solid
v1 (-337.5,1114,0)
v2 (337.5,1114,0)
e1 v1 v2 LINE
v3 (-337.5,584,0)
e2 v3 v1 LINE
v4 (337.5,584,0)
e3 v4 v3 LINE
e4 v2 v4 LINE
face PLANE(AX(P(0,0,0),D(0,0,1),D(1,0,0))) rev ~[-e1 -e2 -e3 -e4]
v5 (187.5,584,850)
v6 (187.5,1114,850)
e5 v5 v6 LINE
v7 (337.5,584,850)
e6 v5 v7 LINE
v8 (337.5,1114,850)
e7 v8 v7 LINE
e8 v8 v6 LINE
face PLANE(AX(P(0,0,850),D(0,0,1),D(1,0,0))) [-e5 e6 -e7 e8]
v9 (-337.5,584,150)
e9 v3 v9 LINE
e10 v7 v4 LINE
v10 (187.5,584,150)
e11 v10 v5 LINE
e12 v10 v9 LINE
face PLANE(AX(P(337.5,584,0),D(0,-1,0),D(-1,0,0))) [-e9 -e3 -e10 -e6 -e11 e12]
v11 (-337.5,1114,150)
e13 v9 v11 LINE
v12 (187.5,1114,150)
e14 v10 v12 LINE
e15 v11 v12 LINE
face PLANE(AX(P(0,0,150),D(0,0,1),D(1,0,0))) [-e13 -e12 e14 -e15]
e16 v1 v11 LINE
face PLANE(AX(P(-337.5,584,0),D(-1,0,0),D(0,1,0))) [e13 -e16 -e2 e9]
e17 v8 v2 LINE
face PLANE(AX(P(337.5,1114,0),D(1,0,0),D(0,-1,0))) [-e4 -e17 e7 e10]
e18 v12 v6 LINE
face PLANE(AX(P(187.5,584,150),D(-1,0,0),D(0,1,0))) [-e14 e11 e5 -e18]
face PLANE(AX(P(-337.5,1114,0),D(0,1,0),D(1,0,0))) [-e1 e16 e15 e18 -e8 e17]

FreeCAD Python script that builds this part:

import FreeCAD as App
import Part
import Sketcher

doc = App.newDocument("Part")
body = doc.addObject("PartDesign::Body", "Body")

# Sketch on XY plane
sketch1 = body.newObject("Sketcher::SketchObject", "Sketch")
sketch1.AttachmentSupport = (doc.getObject("XY_Plane"), [""])
sketch1.MapMode = "FlatFace"
sketch1.addGeometry([
    Part.LineSegment(App.Vector(338, 1114, 0), App.Vector(-338, 1114, 0)),
    Part.LineSegment(App.Vector(-338, 1114, 0), App.Vector(-338, 584, 0)),
    Part.LineSegment(App.Vector(-338, 584, 0), App.Vector(338, 584, 0)),
    Part.LineSegment(App.Vector(338, 584, 0), App.Vector(338, 1114, 0)),
], False)
sketch1.addConstraint([
    Sketcher.Constraint("Coincident", 0, 2, 1, 1),
    Sketcher.Constraint("Coincident", 1, 2, 2, 1),
    Sketcher.Constraint("Coincident", 2, 2, 3, 1),
    Sketcher.Constraint("Coincident", 3, 2, 0, 1),
    Sketcher.Constraint("Horizontal", 0),
    Sketcher.Constraint("Vertical", 1),
    Sketcher.Constraint("Horizontal", 2),
    Sketcher.Constraint("Vertical", 3),
    Sketcher.Constraint("DistanceX", 0, 2, 0, 1, 675.0),
    Sketcher.Constraint("DistanceY", 1, 2, 1, 1, 530.0),
    Sketcher.Constraint("DistanceY", -1, 1, 0, 2, 1114.0),
    Sketcher.Constraint("DistanceX", 0, 2, -1, 1, 337.5),
])
pad1 = body.newObject("PartDesign::Pad", "Pad")
pad1.Profile = sketch1
pad1.Length = 150

# Sketch on XY plane
sketch2 = body.newObject("Sketcher::SketchObject", "Sketch001")
sketch2.AttachmentSupport = (doc.getObject("XY_Plane"), [""])
sketch2.MapMode = "FlatFace"
sketch2.AttachmentOffset = App.Placement(App.Vector(0, 0, 150), App.Rotation())
sketch2.addGeometry([
    Part.LineSegment(App.Vector(188, 1114, 0), App.Vector(188, 584, 0)),
    Part.LineSegment(App.Vector(188, 584, 0), App.Vector(338, 584, 0)),
    Part.LineSegment(App.Vector(338, 584, 0), App.Vector(338, 1114, 0)),
    Part.LineSegment(App.Vector(338, 1114, 0), App.Vector(188, 1114, 0)),
], False)
sketch2.addConstraint([
    Sketcher.Constraint("Coincident", 0, 2, 1, 1),
    Sketcher.Constraint("Coincident", 1, 2, 2, 1),
    Sketcher.Constraint("Coincident", 2, 2, 3, 1),
    Sketcher.Constraint("Coincident", 3, 2, 0, 1),
    Sketcher.Constraint("Vertical", 0),
    Sketcher.Constraint("Horizontal", 1),
    Sketcher.Constraint("Vertical", 2),
    Sketcher.Constraint("Horizontal", 3),
    Sketcher.Constraint("DistanceX", 1, 1, 1, 2, 150.0),
    Sketcher.Constraint("DistanceY", 0, 2, 0, 1, 530.0),
    Sketcher.Constraint("DistanceY", -1, 1, 0, 2, 584.0),
    Sketcher.Constraint("DistanceX", -1, 1, 0, 2, 187.5),
])
pad2 = body.newObject("PartDesign::Pad", "Pad001")
pad2.Profile = sketch2
pad2.Length = 700

doc.recompute()
